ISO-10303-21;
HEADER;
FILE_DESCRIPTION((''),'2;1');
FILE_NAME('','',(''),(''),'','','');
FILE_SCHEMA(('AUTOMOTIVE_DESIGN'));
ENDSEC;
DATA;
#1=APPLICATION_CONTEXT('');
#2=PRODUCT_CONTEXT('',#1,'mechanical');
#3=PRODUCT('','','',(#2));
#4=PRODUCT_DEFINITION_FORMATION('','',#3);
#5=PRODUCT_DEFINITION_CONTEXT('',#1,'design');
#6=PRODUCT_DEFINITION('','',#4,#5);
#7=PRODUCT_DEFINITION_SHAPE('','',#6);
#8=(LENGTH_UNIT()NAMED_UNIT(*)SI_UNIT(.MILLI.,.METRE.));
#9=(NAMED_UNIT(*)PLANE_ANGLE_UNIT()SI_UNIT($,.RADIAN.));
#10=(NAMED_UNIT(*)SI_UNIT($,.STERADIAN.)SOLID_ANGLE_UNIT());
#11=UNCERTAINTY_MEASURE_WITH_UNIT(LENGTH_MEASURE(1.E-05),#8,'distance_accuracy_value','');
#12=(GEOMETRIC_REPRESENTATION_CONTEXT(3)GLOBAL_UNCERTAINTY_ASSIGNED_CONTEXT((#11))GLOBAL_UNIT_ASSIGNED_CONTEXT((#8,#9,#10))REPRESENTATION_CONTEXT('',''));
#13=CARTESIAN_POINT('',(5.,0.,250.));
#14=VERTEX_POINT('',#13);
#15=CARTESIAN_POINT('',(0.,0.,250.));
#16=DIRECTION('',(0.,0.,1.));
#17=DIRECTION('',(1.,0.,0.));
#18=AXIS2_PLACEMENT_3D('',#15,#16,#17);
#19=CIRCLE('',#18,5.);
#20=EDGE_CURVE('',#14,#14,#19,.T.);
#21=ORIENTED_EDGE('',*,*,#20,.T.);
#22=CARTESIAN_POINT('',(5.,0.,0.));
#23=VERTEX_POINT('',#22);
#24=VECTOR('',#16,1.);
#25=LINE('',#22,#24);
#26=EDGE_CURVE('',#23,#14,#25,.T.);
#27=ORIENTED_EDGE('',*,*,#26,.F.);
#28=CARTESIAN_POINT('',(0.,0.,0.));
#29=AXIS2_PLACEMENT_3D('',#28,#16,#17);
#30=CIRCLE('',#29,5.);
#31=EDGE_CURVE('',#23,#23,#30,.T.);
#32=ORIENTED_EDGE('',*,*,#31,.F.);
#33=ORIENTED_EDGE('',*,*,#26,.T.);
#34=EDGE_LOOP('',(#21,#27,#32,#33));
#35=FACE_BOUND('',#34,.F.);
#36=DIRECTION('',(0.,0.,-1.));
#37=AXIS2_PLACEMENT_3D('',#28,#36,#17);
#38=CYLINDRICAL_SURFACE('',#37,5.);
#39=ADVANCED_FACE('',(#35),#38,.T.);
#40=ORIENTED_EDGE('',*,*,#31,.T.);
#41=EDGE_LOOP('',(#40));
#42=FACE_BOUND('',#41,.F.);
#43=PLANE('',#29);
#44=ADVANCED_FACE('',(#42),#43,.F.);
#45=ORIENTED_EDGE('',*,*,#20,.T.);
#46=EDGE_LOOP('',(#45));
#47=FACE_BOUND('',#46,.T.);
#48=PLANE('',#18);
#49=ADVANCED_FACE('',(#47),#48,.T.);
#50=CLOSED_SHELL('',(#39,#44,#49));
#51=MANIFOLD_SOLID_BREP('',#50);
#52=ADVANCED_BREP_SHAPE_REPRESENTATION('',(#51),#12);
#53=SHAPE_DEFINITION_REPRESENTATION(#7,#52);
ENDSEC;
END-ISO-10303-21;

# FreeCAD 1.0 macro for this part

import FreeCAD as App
import Part
import Sketcher
from FreeCAD import Vector
Q = App.Units.Quantity

doc = App.newDocument("Part")
body = doc.addObject("PartDesign::Body", "Body")

# Sketch on XY plane
sketch1 = body.newObject("Sketcher::SketchObject", "Sketch")
sketch1.AttachmentSupport = (doc.getObject("XY_Plane"), [""])
sketch1.MapMode = "FlatFace"
sketch1.addGeometry(Part.Circle(Vector(0, 0, 0), Vector(0, 0, 1), 5), False)
sketch1.addConstraint(Sketcher.Constraint("Coincident", 0, 3, -1, 1))
sketch1.addConstraint(Sketcher.Constraint("Diameter", 0, Q("10 mm")))
pad1 = body.newObject("PartDesign::Pad", "Pad")
pad1.Profile = sketch1
pad1.Length = 250

doc.recompute()
